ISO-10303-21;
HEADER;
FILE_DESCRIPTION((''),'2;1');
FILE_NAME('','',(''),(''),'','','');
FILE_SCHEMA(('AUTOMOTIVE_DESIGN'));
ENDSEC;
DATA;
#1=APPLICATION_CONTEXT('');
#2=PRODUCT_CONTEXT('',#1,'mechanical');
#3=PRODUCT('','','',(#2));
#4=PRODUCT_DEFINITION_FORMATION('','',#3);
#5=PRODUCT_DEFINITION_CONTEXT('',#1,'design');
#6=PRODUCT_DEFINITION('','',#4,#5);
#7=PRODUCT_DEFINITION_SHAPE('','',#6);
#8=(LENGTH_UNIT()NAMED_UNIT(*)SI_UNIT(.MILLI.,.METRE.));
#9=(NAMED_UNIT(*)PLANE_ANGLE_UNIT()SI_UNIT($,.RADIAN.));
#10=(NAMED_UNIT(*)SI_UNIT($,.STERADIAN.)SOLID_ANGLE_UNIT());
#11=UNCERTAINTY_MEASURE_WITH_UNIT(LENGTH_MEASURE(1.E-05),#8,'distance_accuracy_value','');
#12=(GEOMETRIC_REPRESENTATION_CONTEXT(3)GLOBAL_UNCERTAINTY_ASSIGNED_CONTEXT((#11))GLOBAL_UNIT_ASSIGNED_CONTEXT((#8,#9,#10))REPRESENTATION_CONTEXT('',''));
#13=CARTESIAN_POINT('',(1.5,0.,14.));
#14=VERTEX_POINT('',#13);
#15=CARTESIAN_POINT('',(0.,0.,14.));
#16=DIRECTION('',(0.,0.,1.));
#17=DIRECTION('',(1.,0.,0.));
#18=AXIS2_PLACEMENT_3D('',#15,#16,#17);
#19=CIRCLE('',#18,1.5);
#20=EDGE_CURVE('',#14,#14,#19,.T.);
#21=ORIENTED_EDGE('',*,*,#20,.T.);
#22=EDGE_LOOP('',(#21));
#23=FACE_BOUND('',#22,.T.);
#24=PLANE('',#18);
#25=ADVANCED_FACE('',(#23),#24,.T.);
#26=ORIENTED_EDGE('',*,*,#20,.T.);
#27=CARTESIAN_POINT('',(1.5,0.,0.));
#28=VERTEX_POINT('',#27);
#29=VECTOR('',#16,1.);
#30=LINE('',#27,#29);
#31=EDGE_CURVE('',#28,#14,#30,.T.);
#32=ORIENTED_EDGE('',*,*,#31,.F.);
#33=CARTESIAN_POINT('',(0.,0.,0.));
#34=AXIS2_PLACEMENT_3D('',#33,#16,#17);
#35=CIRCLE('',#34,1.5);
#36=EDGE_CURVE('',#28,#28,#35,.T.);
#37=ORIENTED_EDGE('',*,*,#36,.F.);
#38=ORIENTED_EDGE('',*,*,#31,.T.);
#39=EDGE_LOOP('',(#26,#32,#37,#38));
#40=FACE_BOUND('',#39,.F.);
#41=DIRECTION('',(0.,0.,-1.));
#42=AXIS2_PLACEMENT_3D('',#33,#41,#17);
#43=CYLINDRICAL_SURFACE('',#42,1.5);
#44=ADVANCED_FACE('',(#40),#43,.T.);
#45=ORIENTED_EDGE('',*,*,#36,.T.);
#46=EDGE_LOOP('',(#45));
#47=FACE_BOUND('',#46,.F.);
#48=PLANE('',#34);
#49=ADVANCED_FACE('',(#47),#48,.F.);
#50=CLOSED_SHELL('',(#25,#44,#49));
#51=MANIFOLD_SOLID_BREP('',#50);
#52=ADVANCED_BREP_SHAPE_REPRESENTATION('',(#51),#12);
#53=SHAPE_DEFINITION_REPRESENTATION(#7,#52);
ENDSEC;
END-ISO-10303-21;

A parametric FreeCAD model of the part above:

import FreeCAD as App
import Part
import Sketcher
from FreeCAD import Vector

doc = App.newDocument("Part")
body = doc.addObject("PartDesign::Body", "Body")

# Sketch on XY plane
sketch1 = doc.addObject("Sketcher::SketchObject", "Sketch")
body.addObject(sketch1)
sketch1.AttachmentSupport = (doc.XY_Plane, [""])
sketch1.MapMode = "FlatFace"
sketch1.addGeometry(Part.Circle(Vector(0, 0, 0), Vector(0, 0, 1), 1.5), False)
sketch1.addConstraint([
    Sketcher.Constraint("Coincident", 0, 3, -1, 1),
    Sketcher.Constraint("Diameter", 0, 3.0),
])
pad1 = doc.addObject("PartDesign::Pad", "Pad")
body.addObject(pad1)
pad1.Profile = sketch1
pad1.Length = 14

doc.recompute()
